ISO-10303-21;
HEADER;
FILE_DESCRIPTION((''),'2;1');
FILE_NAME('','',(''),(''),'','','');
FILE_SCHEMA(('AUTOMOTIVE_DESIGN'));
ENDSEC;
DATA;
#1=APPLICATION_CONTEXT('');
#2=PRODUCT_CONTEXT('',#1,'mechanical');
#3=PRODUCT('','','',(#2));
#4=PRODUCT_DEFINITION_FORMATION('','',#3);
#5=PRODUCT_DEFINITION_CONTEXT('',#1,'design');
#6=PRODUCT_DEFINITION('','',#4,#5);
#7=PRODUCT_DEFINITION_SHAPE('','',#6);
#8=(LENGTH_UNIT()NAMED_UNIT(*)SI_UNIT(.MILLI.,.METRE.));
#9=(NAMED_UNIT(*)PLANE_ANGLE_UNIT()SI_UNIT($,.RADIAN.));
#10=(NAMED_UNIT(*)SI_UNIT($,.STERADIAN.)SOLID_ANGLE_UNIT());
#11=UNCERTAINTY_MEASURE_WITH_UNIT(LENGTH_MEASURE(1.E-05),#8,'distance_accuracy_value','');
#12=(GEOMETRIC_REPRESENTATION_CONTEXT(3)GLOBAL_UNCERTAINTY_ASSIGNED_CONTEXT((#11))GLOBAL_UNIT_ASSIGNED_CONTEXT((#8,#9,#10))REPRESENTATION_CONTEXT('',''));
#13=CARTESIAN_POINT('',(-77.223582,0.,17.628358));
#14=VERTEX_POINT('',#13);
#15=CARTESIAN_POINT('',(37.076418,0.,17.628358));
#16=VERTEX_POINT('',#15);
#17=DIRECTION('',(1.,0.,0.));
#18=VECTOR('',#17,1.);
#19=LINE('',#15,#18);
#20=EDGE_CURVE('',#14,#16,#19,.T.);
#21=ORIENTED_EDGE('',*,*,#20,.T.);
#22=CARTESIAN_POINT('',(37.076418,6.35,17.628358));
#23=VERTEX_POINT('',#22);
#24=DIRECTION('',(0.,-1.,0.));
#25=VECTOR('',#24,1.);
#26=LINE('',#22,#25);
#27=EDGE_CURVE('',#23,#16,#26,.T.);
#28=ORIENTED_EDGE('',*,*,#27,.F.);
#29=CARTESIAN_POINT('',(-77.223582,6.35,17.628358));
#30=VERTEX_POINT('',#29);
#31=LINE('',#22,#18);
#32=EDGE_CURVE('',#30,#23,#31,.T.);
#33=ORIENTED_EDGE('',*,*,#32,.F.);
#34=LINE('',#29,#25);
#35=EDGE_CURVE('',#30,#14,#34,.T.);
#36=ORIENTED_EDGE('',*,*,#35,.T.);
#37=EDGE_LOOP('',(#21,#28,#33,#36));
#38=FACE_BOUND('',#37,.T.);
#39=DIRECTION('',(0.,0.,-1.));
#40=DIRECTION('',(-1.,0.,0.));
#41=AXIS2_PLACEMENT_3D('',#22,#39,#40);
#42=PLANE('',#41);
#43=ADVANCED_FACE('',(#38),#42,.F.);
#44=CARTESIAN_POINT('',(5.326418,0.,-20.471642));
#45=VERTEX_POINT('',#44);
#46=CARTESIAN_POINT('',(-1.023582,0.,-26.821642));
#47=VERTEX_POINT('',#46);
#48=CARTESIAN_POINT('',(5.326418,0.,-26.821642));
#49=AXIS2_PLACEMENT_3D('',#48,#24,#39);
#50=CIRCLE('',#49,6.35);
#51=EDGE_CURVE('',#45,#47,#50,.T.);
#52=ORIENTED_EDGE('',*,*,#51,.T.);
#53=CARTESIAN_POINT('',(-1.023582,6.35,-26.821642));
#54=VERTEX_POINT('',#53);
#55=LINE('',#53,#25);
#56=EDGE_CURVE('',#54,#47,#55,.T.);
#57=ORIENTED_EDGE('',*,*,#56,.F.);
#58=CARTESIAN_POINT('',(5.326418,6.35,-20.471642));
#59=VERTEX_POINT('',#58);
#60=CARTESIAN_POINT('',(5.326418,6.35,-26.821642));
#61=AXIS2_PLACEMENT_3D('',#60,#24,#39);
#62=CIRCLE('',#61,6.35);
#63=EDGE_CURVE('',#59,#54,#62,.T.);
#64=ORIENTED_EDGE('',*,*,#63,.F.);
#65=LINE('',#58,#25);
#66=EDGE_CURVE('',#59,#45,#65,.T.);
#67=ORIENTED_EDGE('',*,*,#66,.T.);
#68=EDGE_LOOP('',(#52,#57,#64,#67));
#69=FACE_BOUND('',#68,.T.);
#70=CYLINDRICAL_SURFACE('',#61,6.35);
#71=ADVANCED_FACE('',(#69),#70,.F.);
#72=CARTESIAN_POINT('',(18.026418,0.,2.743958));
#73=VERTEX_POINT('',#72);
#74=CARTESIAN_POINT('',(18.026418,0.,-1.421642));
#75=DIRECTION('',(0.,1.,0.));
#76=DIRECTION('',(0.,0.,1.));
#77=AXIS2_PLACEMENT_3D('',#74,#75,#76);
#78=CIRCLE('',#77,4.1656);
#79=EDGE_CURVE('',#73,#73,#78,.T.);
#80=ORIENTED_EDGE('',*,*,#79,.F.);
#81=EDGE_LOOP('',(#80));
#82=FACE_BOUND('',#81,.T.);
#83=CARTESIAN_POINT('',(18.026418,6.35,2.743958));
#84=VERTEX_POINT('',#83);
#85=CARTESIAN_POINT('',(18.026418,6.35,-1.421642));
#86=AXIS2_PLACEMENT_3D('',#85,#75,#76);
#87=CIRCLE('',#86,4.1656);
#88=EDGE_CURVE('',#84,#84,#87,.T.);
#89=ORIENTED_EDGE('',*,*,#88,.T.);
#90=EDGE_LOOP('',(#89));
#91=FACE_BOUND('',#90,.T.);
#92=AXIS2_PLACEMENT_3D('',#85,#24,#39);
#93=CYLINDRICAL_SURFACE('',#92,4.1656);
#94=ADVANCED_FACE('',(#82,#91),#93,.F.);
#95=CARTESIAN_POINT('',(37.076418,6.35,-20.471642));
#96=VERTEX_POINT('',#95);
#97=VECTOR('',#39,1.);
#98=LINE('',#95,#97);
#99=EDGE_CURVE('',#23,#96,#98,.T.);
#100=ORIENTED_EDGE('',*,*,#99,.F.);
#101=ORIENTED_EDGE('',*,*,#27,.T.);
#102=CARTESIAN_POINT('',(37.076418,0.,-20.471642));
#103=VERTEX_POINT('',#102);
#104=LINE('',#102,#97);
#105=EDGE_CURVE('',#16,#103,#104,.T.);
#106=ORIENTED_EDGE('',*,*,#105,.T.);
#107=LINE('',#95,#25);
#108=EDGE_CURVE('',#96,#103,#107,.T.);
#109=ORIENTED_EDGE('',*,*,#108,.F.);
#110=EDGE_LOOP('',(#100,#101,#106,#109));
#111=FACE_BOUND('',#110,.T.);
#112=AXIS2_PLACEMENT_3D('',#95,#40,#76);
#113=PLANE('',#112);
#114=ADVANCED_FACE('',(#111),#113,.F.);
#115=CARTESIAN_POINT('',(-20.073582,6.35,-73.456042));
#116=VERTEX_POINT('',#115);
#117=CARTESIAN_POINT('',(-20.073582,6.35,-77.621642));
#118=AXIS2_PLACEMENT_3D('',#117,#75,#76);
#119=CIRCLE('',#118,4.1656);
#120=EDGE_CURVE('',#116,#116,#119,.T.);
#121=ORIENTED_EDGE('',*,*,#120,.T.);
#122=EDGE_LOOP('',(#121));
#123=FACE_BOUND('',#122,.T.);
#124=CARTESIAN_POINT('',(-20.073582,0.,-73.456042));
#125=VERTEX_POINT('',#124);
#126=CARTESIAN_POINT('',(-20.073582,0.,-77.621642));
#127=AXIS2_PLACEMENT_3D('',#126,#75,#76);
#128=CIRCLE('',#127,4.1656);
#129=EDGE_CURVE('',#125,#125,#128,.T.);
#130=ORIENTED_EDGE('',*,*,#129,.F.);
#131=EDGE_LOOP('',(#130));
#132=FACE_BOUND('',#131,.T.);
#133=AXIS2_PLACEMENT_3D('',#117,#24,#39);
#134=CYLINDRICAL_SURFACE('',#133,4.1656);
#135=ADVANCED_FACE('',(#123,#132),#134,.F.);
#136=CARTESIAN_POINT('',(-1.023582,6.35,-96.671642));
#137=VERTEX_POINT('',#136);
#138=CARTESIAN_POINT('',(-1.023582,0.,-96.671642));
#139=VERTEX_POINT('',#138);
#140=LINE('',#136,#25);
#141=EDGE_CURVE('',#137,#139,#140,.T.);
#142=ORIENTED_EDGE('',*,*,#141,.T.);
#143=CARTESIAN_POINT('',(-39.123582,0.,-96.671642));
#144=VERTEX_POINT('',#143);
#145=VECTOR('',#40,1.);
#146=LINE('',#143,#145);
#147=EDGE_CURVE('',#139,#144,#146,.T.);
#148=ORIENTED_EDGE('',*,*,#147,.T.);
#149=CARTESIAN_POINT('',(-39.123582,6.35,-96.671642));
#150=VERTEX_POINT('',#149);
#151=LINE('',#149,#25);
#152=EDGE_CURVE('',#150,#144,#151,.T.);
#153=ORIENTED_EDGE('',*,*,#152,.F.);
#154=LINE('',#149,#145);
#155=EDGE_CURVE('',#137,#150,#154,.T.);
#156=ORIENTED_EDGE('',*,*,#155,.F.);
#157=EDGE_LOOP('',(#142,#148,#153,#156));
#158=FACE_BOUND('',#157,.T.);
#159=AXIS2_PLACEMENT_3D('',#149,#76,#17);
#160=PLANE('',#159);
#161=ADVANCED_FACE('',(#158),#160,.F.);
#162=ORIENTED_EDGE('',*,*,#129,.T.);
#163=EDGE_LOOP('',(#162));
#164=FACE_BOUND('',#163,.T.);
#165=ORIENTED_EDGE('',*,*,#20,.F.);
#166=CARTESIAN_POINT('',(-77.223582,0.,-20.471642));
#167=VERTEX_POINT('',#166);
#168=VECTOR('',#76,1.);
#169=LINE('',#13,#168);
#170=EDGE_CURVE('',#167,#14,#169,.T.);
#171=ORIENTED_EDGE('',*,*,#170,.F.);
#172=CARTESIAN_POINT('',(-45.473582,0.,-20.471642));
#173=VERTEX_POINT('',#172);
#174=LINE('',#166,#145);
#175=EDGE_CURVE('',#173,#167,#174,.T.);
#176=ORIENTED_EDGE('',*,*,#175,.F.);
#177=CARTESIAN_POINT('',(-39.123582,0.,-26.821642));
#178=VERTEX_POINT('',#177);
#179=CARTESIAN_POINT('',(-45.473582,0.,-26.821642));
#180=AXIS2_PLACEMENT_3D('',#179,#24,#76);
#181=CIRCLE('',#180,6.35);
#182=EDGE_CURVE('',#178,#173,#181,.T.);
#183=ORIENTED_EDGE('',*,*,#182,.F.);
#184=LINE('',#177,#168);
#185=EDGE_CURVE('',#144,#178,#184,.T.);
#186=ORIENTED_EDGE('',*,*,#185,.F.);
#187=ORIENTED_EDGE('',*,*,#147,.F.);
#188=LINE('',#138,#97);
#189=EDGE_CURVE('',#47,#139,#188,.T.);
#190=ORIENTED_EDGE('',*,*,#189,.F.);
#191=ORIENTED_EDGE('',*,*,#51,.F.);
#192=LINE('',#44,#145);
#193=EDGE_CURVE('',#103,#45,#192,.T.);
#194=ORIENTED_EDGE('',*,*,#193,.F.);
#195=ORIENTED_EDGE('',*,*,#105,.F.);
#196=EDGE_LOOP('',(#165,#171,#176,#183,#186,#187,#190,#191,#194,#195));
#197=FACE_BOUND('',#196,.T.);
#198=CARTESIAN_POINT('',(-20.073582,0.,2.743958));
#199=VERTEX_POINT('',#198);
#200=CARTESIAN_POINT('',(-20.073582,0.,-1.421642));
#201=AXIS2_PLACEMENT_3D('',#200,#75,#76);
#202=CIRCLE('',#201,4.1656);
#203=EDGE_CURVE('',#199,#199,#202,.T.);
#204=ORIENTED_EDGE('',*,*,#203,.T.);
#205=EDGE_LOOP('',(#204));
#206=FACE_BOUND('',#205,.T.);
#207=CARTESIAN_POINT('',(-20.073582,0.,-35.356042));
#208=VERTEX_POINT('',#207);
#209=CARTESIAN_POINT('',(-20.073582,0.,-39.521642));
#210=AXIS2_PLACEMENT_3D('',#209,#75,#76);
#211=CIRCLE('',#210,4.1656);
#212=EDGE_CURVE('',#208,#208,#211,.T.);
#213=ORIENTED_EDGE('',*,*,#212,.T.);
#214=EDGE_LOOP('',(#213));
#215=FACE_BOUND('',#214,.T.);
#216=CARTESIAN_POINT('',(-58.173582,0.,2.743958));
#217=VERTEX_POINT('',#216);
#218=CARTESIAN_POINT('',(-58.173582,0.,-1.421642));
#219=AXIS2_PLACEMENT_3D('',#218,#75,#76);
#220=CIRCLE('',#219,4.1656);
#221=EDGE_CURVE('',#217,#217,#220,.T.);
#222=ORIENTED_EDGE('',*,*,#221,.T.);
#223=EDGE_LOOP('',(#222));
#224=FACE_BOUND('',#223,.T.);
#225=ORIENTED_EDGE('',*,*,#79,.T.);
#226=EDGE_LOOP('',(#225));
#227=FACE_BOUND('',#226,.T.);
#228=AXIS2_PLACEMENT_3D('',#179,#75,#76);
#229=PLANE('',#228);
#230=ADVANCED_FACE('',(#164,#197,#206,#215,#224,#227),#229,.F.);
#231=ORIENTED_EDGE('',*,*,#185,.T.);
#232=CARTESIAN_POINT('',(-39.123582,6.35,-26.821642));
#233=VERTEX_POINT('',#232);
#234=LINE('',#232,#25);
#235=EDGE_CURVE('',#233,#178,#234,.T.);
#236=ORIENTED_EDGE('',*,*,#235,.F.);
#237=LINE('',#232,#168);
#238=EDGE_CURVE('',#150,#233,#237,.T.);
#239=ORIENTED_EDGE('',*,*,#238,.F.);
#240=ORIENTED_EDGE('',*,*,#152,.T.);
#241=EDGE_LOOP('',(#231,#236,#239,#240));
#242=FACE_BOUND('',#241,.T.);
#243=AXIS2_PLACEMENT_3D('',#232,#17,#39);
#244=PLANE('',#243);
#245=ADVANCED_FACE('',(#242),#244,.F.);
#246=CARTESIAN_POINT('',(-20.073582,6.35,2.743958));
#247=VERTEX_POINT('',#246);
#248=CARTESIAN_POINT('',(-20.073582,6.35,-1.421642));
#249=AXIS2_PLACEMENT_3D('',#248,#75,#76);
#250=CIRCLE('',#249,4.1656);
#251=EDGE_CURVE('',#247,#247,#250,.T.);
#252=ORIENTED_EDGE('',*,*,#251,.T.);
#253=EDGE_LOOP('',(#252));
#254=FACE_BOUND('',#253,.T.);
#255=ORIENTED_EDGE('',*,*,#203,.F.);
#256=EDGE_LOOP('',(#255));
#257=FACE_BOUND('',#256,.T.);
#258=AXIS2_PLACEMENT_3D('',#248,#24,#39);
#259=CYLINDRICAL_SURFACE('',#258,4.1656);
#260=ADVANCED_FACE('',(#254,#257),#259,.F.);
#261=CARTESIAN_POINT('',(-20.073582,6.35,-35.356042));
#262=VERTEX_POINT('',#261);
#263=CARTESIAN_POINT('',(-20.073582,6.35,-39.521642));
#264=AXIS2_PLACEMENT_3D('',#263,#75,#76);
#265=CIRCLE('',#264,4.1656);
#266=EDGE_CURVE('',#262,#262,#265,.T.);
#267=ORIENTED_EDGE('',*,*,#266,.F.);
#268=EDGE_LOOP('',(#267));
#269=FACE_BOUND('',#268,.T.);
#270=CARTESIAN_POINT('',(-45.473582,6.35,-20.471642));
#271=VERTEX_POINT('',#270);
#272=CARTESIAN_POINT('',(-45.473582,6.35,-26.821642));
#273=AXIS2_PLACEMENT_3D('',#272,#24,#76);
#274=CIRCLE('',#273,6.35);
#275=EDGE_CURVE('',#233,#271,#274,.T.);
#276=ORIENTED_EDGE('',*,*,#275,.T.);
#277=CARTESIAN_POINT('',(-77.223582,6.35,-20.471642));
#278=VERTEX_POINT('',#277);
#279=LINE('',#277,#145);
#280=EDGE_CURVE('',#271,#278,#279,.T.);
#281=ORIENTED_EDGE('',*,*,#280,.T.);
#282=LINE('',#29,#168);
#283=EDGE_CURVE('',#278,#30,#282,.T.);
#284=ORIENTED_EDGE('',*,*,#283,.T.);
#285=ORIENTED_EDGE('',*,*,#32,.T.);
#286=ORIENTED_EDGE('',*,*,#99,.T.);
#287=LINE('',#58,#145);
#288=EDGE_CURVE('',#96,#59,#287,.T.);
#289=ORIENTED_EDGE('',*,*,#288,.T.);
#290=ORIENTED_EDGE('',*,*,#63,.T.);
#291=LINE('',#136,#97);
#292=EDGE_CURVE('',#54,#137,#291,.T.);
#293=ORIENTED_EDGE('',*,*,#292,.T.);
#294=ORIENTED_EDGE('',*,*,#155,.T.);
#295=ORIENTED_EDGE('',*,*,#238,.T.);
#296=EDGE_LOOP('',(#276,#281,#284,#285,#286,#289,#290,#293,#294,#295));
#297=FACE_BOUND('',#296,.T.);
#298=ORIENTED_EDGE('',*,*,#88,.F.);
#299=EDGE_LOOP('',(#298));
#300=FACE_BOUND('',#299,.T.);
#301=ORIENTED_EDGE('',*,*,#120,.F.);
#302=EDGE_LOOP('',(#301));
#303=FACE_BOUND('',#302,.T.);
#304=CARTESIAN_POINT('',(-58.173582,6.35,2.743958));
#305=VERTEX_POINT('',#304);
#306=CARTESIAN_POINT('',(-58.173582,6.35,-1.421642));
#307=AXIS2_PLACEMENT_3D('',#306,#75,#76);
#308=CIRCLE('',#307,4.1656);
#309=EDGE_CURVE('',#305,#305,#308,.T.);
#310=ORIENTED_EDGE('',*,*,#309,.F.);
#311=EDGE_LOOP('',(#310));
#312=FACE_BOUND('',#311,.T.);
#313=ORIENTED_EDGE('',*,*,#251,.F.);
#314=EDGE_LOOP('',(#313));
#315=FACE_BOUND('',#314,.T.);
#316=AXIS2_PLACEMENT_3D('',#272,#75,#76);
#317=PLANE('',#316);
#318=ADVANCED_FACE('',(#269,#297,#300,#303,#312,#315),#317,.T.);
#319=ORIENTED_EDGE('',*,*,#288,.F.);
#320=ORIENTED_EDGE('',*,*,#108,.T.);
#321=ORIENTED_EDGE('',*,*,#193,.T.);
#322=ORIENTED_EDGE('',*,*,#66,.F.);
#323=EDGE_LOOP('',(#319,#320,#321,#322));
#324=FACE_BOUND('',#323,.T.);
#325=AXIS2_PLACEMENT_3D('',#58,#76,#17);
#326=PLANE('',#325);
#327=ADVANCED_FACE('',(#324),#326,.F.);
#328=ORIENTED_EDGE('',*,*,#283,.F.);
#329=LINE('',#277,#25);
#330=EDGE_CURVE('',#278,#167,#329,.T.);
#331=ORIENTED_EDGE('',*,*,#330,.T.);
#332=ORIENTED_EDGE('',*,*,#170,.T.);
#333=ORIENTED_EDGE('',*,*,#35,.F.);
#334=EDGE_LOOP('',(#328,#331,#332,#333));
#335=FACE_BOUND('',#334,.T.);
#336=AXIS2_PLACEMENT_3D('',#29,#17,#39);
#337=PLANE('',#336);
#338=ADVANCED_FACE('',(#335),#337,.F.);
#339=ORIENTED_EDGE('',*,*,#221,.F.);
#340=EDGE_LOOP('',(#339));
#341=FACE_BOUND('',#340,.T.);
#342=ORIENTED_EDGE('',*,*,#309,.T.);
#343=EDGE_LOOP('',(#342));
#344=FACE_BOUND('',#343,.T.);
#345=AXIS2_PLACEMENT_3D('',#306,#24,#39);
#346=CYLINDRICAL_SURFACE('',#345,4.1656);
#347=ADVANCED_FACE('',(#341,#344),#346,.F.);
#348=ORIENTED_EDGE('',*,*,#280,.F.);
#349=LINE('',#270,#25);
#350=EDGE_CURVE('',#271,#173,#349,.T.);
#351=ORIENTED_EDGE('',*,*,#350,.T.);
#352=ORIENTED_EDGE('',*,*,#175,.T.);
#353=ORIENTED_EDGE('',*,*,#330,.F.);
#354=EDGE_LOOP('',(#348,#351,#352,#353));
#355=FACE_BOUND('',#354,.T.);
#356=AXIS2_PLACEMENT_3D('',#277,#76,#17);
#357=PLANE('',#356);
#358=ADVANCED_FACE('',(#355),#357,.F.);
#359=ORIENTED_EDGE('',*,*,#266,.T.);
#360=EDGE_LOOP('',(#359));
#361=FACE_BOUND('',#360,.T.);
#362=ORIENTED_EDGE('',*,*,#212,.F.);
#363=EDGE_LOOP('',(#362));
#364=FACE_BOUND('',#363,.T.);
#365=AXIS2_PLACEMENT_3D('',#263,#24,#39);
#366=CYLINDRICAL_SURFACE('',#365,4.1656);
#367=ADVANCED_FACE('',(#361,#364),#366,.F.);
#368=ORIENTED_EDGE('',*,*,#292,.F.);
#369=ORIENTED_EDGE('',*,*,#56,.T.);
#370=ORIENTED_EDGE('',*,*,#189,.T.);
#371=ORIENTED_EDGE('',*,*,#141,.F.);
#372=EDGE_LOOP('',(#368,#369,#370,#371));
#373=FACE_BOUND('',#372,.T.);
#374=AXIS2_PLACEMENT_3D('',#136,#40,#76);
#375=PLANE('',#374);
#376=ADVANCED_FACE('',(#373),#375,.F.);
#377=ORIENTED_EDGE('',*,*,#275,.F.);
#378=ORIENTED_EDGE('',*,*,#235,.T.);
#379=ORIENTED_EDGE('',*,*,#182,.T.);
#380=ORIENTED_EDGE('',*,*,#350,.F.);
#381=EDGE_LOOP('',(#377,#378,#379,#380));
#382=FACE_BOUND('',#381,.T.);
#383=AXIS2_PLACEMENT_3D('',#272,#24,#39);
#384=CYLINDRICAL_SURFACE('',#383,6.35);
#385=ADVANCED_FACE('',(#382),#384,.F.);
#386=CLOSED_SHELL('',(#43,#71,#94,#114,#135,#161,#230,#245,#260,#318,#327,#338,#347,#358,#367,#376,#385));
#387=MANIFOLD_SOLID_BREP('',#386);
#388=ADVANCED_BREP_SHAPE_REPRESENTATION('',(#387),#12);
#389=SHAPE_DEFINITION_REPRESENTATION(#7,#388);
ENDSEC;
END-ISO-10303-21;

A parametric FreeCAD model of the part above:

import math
import FreeCAD as App
import Part
import Sketcher
Q = App.Units.Quantity

doc = App.newDocument("Part")
body = doc.addObject("PartDesign::Body", "Body")

sketch1 = body.newObject("Sketcher::SketchObject", "Sketch")
sketch1.AttachmentSupport = (doc.getObject("XZ_Plane"), [""])
sketch1.MapMode = "FlatFace"
sketch1.addGeometry([
    Part.LineSegment(App.Vector(-77.223582, -20.471642, 0), App.Vector(-77.223582, 17.628358, 0)),
    Part.LineSegment(App.Vector(-77.223582, 17.628358, 0), App.Vector(37.076418, 17.628358, 0)),
    Part.LineSegment(App.Vector(37.076418, 17.628358, 0), App.Vector(37.076418, -20.471642, 0)),
    Part.LineSegment(App.Vector(37.076418, -20.471642, 0), App.Vector(5.326418, -20.471642, 0)),
    Part.ArcOfCircle(Part.Circle(App.Vector(5.326418, -26.821642, 0), App.Vector(0, 0, 1), 6.35), math.radians(90), math.radians(180)),
    Part.LineSegment(App.Vector(-1.023582, -26.821642, 0), App.Vector(-1.023582, -96.671642, 0)),
    Part.LineSegment(App.Vector(-1.023582, -96.671642, 0), App.Vector(-39.123582, -96.671642, 0)),
    Part.LineSegment(App.Vector(-39.123582, -96.671642, 0), App.Vector(-39.123582, -26.821642, 0)),
    Part.ArcOfCircle(Part.Circle(App.Vector(-45.473582, -26.821642, 0), App.Vector(0, 0, 1), 6.35), math.radians(0), math.radians(90)),
    Part.LineSegment(App.Vector(-45.473582, -20.471642, 0), App.Vector(-77.223582, -20.471642, 0)),
    Part.Circle(App.Vector(18.026418, -1.421642, 0), App.Vector(0, 0, 1), 4.1656),
    Part.Circle(App.Vector(-20.073582, -1.421642, 0), App.Vector(0, 0, 1), 4.1656),
    Part.Circle(App.Vector(-58.173582, -1.421642, 0), App.Vector(0, 0, 1), 4.1656),
    Part.Circle(App.Vector(-20.073582, -39.521642, 0), App.Vector(0, 0, 1), 4.1656),
    Part.Circle(App.Vector(-20.073582, -77.621642, 0), App.Vector(0, 0, 1), 4.1656),
], False)
sketch1.addConstraint([
    Sketcher.Constraint("Coincident", 0, 2, 1, 1),
    Sketcher.Constraint("Coincident", 1, 2, 2, 1),
    Sketcher.Constraint("Coincident", 2, 2, 3, 1),
    Sketcher.Constraint("Tangent", 3, 2, 4, 1),
    Sketcher.Constraint("Tangent", 4, 2, 5, 1),
    Sketcher.Constraint("Coincident", 5, 2, 6, 1),
    Sketcher.Constraint("Coincident", 6, 2, 7, 1),
    Sketcher.Constraint("Tangent", 7, 2, 8, 1),
    Sketcher.Constraint("Tangent", 8, 2, 9, 1),
    Sketcher.Constraint("Coincident", 9, 2, 0, 1),
    Sketcher.Constraint("Vertical", 0),
    Sketcher.Constraint("Horizontal", 1),
    Sketcher.Constraint("Vertical", 2),
    Sketcher.Constraint("Horizontal", 3),
    Sketcher.Constraint("Vertical", 5),
    Sketcher.Constraint("Horizontal", 6),
    Sketcher.Constraint("Vertical", 7),
    Sketcher.Constraint("Horizontal", 9),
    Sketcher.Constraint("Equal", 4, 8),
    Sketcher.Constraint("Equal", 10, 11),
    Sketcher.Constraint("Equal", 11, 12),
    Sketcher.Constraint("Equal", 12, 13),
    Sketcher.Constraint("Equal", 13, 14),
    Sketcher.Constraint("Horizontal", 4, 3, 8, 3),
    Sketcher.Constraint("Horizontal", 10, 3, 11, 3),
    Sketcher.Constraint("Horizontal", 11, 3, 12, 3),
    Sketcher.Constraint("Vertical", 11, 3, 13, 3),
    Sketcher.Constraint("Vertical", 13, 3, 14, 3),
    Sketcher.Constraint("Equal", 3, 9),
    Sketcher.Constraint("Equal", 6, 0),
    Sketcher.Constraint("Radius", 4, Q("0.25 in")),
    Sketcher.Constraint("Diameter", 10, Q("0.328 in")),
    Sketcher.Constraint("DistanceX", 1, 1, 1, 2, Q("4.5 in")),
    Sketcher.Constraint("DistanceX", 6, 2, 6, 1, Q("1.5 in")),
    Sketcher.Constraint("DistanceY", 4, 3, 10, 3, Q("1 in")),
    Sketcher.Constraint("DistanceX", 8, 3, 11, 3, Q("1 in")),
    Sketcher.Constraint("DistanceX", 12, 3, 10, 3, Q("3 in")),
    Sketcher.Constraint("DistanceY", 14, 3, 4, 3, Q("2 in")),
    Sketcher.Constraint("DistanceY", 5, 2, 3, 2, Q("3 in")),
    Sketcher.Constraint("DistanceX", 4, 3, 10, 3, Q("0.5 in")),
    Sketcher.Constraint("DistanceY", 13, 3, 8, 3, Q("0.5 in")),
    Sketcher.Constraint("DistanceY", 4, 3, -1, 1, 26.821642),
    Sketcher.Constraint("DistanceX", -1, 1, 4, 3, 5.326418),
])
pad1 = body.newObject("PartDesign::Pad", "Pad")
pad1.Profile = sketch1
pad1.Length = Q("0.25 in")
pad1.Reversed = True

doc.recompute()
